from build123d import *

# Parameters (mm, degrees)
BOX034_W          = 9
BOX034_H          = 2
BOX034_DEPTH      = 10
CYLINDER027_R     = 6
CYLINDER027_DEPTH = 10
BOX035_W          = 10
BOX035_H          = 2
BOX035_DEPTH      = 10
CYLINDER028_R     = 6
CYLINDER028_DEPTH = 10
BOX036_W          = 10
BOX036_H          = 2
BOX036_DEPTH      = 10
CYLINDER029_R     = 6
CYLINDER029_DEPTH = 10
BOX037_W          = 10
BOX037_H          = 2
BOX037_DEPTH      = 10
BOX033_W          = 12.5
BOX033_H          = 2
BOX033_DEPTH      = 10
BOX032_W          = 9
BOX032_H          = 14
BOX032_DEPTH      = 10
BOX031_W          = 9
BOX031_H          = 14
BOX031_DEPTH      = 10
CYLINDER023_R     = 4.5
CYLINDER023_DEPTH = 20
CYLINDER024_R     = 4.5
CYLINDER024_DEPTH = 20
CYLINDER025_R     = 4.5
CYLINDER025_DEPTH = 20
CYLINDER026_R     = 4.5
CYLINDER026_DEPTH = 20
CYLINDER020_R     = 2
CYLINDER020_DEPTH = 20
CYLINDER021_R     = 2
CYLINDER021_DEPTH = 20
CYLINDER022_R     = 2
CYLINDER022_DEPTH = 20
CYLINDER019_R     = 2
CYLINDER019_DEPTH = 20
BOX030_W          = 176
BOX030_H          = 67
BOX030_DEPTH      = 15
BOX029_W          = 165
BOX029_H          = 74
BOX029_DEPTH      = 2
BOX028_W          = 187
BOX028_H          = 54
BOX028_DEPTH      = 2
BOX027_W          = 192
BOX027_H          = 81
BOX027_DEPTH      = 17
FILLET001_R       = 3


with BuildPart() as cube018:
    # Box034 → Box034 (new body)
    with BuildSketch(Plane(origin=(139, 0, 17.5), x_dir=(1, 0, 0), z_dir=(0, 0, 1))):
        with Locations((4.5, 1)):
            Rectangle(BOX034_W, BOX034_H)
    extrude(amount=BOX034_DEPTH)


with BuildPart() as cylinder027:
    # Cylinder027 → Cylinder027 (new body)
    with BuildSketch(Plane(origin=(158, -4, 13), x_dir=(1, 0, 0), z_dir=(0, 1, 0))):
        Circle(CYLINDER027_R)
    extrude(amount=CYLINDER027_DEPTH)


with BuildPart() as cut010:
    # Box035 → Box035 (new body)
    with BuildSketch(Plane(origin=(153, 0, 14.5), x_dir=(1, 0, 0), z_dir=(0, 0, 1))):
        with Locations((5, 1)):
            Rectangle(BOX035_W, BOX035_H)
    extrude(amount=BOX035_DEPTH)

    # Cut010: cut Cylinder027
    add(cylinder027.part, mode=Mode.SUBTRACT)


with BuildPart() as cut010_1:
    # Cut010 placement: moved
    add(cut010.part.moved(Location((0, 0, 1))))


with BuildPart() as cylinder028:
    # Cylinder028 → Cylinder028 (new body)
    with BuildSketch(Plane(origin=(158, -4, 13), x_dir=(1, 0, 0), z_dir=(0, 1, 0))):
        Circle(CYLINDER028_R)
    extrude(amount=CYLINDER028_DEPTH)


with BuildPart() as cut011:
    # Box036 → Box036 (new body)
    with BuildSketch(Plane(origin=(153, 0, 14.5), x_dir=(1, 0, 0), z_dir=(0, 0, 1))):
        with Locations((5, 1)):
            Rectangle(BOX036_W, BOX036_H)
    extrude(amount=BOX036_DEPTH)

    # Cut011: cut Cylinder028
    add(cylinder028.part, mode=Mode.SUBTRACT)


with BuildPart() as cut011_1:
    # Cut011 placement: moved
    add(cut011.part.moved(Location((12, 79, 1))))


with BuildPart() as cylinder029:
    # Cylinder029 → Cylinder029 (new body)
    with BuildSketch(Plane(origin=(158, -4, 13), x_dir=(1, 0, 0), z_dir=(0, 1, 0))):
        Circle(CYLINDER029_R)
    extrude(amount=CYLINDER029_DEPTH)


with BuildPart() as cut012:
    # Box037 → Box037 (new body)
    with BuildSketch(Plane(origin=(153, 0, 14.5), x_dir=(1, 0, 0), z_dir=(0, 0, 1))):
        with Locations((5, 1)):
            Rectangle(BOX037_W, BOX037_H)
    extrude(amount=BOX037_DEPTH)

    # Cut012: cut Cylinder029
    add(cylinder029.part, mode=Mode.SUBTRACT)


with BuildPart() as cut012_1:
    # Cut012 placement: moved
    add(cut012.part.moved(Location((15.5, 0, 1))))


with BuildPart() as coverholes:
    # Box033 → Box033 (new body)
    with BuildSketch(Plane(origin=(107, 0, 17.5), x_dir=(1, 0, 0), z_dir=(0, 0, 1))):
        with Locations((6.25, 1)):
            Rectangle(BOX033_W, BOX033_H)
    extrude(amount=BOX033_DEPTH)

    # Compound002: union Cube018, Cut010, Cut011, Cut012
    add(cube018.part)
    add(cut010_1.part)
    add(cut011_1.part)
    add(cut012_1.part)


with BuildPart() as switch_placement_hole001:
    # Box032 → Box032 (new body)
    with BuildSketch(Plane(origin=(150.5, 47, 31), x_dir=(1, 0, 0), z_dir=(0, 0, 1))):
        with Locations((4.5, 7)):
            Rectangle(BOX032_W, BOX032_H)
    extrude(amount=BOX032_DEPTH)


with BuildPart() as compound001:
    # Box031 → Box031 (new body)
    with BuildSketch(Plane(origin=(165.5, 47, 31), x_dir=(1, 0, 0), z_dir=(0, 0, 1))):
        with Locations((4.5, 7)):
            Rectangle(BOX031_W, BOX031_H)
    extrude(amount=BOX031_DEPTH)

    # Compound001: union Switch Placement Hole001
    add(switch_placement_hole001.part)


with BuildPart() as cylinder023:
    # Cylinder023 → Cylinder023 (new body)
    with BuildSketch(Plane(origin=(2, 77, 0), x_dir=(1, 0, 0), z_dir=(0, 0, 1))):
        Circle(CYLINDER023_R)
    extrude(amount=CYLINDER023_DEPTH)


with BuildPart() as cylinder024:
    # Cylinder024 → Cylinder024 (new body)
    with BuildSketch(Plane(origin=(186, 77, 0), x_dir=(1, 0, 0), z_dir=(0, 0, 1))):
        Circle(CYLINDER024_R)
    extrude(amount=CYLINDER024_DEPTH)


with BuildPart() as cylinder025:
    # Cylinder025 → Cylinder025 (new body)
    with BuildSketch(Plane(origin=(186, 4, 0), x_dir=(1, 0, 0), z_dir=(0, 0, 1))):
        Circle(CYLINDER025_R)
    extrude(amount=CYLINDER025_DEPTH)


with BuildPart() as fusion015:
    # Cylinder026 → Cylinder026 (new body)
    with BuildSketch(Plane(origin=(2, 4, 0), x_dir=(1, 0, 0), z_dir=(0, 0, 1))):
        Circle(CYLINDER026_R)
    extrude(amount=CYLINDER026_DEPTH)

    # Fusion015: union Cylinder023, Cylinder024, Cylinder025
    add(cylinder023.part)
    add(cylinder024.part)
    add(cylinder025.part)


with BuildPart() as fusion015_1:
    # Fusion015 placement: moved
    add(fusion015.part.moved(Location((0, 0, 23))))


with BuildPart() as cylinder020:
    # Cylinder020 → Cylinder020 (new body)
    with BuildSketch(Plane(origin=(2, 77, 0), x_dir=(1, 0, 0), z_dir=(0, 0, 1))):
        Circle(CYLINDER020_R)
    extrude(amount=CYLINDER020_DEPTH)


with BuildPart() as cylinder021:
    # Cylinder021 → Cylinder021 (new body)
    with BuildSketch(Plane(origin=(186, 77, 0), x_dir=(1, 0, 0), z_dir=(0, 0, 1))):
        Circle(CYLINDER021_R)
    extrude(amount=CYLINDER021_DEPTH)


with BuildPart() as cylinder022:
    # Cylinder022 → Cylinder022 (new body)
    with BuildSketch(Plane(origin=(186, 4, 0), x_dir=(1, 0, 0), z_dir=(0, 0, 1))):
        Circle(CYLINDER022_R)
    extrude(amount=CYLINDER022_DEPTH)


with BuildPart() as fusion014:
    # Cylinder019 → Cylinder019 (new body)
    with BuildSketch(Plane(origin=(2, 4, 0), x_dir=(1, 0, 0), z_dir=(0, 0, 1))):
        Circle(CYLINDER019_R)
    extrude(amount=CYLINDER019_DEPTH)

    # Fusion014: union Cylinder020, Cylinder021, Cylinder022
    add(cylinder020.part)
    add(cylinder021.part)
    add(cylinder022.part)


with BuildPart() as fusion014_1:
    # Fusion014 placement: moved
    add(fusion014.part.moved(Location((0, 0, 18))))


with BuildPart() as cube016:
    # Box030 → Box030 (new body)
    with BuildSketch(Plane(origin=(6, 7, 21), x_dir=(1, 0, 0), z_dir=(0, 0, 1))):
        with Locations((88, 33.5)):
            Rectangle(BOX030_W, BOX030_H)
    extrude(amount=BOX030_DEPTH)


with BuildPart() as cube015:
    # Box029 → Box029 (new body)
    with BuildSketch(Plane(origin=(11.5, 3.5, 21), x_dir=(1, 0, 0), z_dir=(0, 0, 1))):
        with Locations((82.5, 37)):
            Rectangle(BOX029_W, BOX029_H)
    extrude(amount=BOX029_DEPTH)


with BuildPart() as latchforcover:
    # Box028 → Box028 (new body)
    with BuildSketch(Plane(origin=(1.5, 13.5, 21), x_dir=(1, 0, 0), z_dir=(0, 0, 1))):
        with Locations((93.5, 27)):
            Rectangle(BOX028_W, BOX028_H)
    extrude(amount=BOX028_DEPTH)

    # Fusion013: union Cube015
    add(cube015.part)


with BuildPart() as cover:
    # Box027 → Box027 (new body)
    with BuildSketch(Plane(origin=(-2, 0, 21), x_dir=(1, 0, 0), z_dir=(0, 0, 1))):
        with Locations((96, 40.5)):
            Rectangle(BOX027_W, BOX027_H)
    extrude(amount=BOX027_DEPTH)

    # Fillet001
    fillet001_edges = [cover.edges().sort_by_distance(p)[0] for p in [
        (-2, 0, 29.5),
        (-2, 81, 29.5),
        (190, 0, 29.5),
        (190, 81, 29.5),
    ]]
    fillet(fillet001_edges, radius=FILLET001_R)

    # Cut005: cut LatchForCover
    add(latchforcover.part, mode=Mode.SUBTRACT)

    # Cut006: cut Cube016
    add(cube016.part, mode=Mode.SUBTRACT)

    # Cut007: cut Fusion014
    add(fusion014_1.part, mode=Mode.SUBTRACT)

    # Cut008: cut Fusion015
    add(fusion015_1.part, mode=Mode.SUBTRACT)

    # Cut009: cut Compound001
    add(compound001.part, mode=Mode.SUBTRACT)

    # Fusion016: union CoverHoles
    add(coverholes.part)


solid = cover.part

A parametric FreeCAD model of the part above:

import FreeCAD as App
import Part
import Sketcher
from FreeCAD import Vector


def edges_at(feature, points):
    """Names of the edges that pass closest to the given points."""
    edges = feature.Shape.Edges
    near = lambda p: min(range(len(edges)), key=lambda i: edges[i].distToShape(Part.Vertex(*p))[0])
    return sorted({f"Edge{near(p) + 1}" for p in points})

doc = App.newDocument("Part")
body = doc.addObject("PartDesign::Body", "Body")

sketch1 = body.newObject("Sketcher::SketchObject", "Sketch")
sketch1.AttachmentSupport = (doc.getObject("XY_Plane"), [""])
sketch1.MapMode = "FlatFace"
sketch1.AttachmentOffset = App.Placement(Vector(0, 0, 17.5), App.Rotation())
sketch1.addGeometry([
    Part.LineSegment(Vector(139, 2, 0), Vector(139, 0, 0)),
    Part.LineSegment(Vector(139, 0, 0), Vector(148, 0, 0)),
    Part.LineSegment(Vector(148, 0, 0), Vector(148, 2, 0)),
    Part.LineSegment(Vector(148, 2, 0), Vector(139, 2, 0)),
], False)
sketch1.addConstraint([
    Sketcher.Constraint("Coincident", 0, 2, 1, 1),
    Sketcher.Constraint("Coincident", 1, 2, 2, 1),
    Sketcher.Constraint("Coincident", 2, 2, 3, 1),
    Sketcher.Constraint("Coincident", 3, 2, 0, 1),
    Sketcher.Constraint("Vertical", 0),
    Sketcher.Constraint("Horizontal", 1),
    Sketcher.Constraint("Vertical", 2),
    Sketcher.Constraint("Horizontal", 3),
    Sketcher.Constraint("PointOnObject", 0, 2, -1),
    Sketcher.Constraint("DistanceX", 1, 1, 1, 2, 9.0),
    Sketcher.Constraint("DistanceY", 0, 2, 0, 1, 2.0),
    Sketcher.Constraint("DistanceX", -1, 1, 0, 2, 139.0),
])
pad1 = body.newObject("PartDesign::Pad", "Pad")
pad1.Profile = sketch1
pad1.Length = 10
body2 = doc.addObject("PartDesign::Body", "Body001")

sketch2 = body2.newObject("Sketcher::SketchObject", "Sketch001")
sketch2.AttachmentSupport = (doc.getObject("XZ_Plane001"), [""])
sketch2.MapMode = "FlatFace"
sketch2.AttachmentOffset = App.Placement(Vector(0, 0, 4), App.Rotation())
sketch2.addGeometry(Part.Circle(Vector(158, 13, 0), Vector(0, 0, 1), 6), False)
sketch2.addConstraint([
    Sketcher.Constraint("Diameter", 0, 12.0),
    Sketcher.Constraint("DistanceX", -1, 1, 0, 3, 158.0),
    Sketcher.Constraint("DistanceY", -1, 1, 0, 3, 13.0),
])
pad2 = body2.newObject("PartDesign::Pad", "Pad001")
pad2.Profile = sketch2
pad2.Length = 10
pad2.Reversed = True
body3 = doc.addObject("PartDesign::Body", "Body002")

sketch3 = body3.newObject("Sketcher::SketchObject", "Sketch002")
sketch3.AttachmentSupport = (doc.getObject("XY_Plane002"), [""])
sketch3.MapMode = "FlatFace"
sketch3.AttachmentOffset = App.Placement(Vector(0, 0, 14.5), App.Rotation())
sketch3.addGeometry([
    Part.LineSegment(Vector(153, 2, 0), Vector(153, 0, 0)),
    Part.LineSegment(Vector(153, 0, 0), Vector(163, 0, 0)),
    Part.LineSegment(Vector(163, 0, 0), Vector(163, 2, 0)),
    Part.LineSegment(Vector(163, 2, 0), Vector(153, 2, 0)),
], False)
sketch3.addConstraint([
    Sketcher.Constraint("Coincident", 0, 2, 1, 1),
    Sketcher.Constraint("Coincident", 1, 2, 2, 1),
    Sketcher.Constraint("Coincident", 2, 2, 3, 1),
    Sketcher.Constraint("Coincident", 3, 2, 0, 1),
    Sketcher.Constraint("Vertical", 0),
    Sketcher.Constraint("Horizontal", 1),
    Sketcher.Constraint("Vertical", 2),
    Sketcher.Constraint("Horizontal", 3),
    Sketcher.Constraint("PointOnObject", 0, 2, -1),
    Sketcher.Constraint("DistanceX", 1, 1, 1, 2, 10.0),
    Sketcher.Constraint("DistanceY", 0, 2, 0, 1, 2.0),
    Sketcher.Constraint("DistanceX", -1, 1, 0, 2, 153.0),
])
pad3 = body3.newObject("PartDesign::Pad", "Pad002")
pad3.Profile = sketch3
pad3.Length = 10
doc.recompute()

boolean = body3.newObject("PartDesign::Boolean", "Boolean")
boolean.Type = "Cut"
boolean.addObjects([body2])
body4 = doc.addObject("PartDesign::Body", "Body003")
doc.recompute()

body3.Placement = App.Placement(Vector(0, 0, 1), App.Rotation(Vector(0, 0, 1), 0))
boolean2 = body4.newObject("PartDesign::Boolean", "Boolean001")
boolean2.Type = "Fuse"
boolean2.addObjects([body3])
body5 = doc.addObject("PartDesign::Body", "Body004")

sketch4 = body5.newObject("Sketcher::SketchObject", "Sketch003")
sketch4.AttachmentSupport = (doc.getObject("XZ_Plane004"), [""])
sketch4.MapMode = "FlatFace"
sketch4.AttachmentOffset = App.Placement(Vector(0, 0, 4), App.Rotation())
sketch4.addGeometry(Part.Circle(Vector(158, 13, 0), Vector(0, 0, 1), 6), False)
sketch4.addConstraint([
    Sketcher.Constraint("Diameter", 0, 12.0),
    Sketcher.Constraint("DistanceX", -1, 1, 0, 3, 158.0),
    Sketcher.Constraint("DistanceY", -1, 1, 0, 3, 13.0),
])
pad4 = body5.newObject("PartDesign::Pad", "Pad003")
pad4.Profile = sketch4
pad4.Length = 10
pad4.Reversed = True
body6 = doc.addObject("PartDesign::Body", "Body005")

sketch5 = body6.newObject("Sketcher::SketchObject", "Sketch004")
sketch5.AttachmentSupport = (doc.getObject("XY_Plane005"), [""])
sketch5.MapMode = "FlatFace"
sketch5.AttachmentOffset = App.Placement(Vector(0, 0, 14.5), App.Rotation())
sketch5.addGeometry([
    Part.LineSegment(Vector(153, 2, 0), Vector(153, 0, 0)),
    Part.LineSegment(Vector(153, 0, 0), Vector(163, 0, 0)),
    Part.LineSegment(Vector(163, 0, 0), Vector(163, 2, 0)),
    Part.LineSegment(Vector(163, 2, 0), Vector(153, 2, 0)),
], False)
sketch5.addConstraint([
    Sketcher.Constraint("Coincident", 0, 2, 1, 1),
    Sketcher.Constraint("Coincident", 1, 2, 2, 1),
    Sketcher.Constraint("Coincident", 2, 2, 3, 1),
    Sketcher.Constraint("Coincident", 3, 2, 0, 1),
    Sketcher.Constraint("Vertical", 0),
    Sketcher.Constraint("Horizontal", 1),
    Sketcher.Constraint("Vertical", 2),
    Sketcher.Constraint("Horizontal", 3),
    Sketcher.Constraint("PointOnObject", 0, 2, -1),
    Sketcher.Constraint("DistanceX", 1, 1, 1, 2, 10.0),
    Sketcher.Constraint("DistanceY", 0, 2, 0, 1, 2.0),
    Sketcher.Constraint("DistanceX", -1, 1, 0, 2, 153.0),
])
pad5 = body6.newObject("PartDesign::Pad", "Pad004")
pad5.Profile = sketch5
pad5.Length = 10
doc.recompute()

boolean3 = body6.newObject("PartDesign::Boolean", "Boolean002")
boolean3.Type = "Cut"
boolean3.addObjects([body5])
body7 = doc.addObject("PartDesign::Body", "Body006")
doc.recompute()

body6.Placement = App.Placement(Vector(12, 79, 1), App.Rotation(Vector(0, 0, 1), 0))
boolean4 = body7.newObject("PartDesign::Boolean", "Boolean003")
boolean4.Type = "Fuse"
boolean4.addObjects([body6])
body8 = doc.addObject("PartDesign::Body", "Body007")

sketch6 = body8.newObject("Sketcher::SketchObject", "Sketch005")
sketch6.AttachmentSupport = (doc.getObject("XZ_Plane007"), [""])
sketch6.MapMode = "FlatFace"
sketch6.AttachmentOffset = App.Placement(Vector(0, 0, 4), App.Rotation())
sketch6.addGeometry(Part.Circle(Vector(158, 13, 0), Vector(0, 0, 1), 6), False)
sketch6.addConstraint([
    Sketcher.Constraint("Diameter", 0, 12.0),
    Sketcher.Constraint("DistanceX", -1, 1, 0, 3, 158.0),
    Sketcher.Constraint("DistanceY", -1, 1, 0, 3, 13.0),
])
pad6 = body8.newObject("PartDesign::Pad", "Pad005")
pad6.Profile = sketch6
pad6.Length = 10
pad6.Reversed = True
body9 = doc.addObject("PartDesign::Body", "Body008")

sketch7 = body9.newObject("Sketcher::SketchObject", "Sketch006")
sketch7.AttachmentSupport = (doc.getObject("XY_Plane008"), [""])
sketch7.MapMode = "FlatFace"
sketch7.AttachmentOffset = App.Placement(Vector(0, 0, 14.5), App.Rotation())
sketch7.addGeometry([
    Part.LineSegment(Vector(153, 2, 0), Vector(153, 0, 0)),
    Part.LineSegment(Vector(153, 0, 0), Vector(163, 0, 0)),
    Part.LineSegment(Vector(163, 0, 0), Vector(163, 2, 0)),
    Part.LineSegment(Vector(163, 2, 0), Vector(153, 2, 0)),
], False)
sketch7.addConstraint([
    Sketcher.Constraint("Coincident", 0, 2, 1, 1),
    Sketcher.Constraint("Coincident", 1, 2, 2, 1),
    Sketcher.Constraint("Coincident", 2, 2, 3, 1),
    Sketcher.Constraint("Coincident", 3, 2, 0, 1),
    Sketcher.Constraint("Vertical", 0),
    Sketcher.Constraint("Horizontal", 1),
    Sketcher.Constraint("Vertical", 2),
    Sketcher.Constraint("Horizontal", 3),
    Sketcher.Constraint("PointOnObject", 0, 2, -1),
    Sketcher.Constraint("DistanceX", 1, 1, 1, 2, 10.0),
    Sketcher.Constraint("DistanceY", 0, 2, 0, 1, 2.0),
    Sketcher.Constraint("DistanceX", -1, 1, 0, 2, 153.0),
])
pad7 = body9.newObject("PartDesign::Pad", "Pad006")
pad7.Profile = sketch7
pad7.Length = 10
doc.recompute()

boolean5 = body9.newObject("PartDesign::Boolean", "Boolean004")
boolean5.Type = "Cut"
boolean5.addObjects([body8])
body10 = doc.addObject("PartDesign::Body", "Body009")
doc.recompute()

body9.Placement = App.Placement(Vector(15.5, 0, 1), App.Rotation(Vector(0, 0, 1), 0))
boolean6 = body10.newObject("PartDesign::Boolean", "Boolean005")
boolean6.Type = "Fuse"
boolean6.addObjects([body9])
body11 = doc.addObject("PartDesign::Body", "Body010")
body11.AllowCompound = True

sketch8 = body11.newObject("Sketcher::SketchObject", "Sketch007")
sketch8.AttachmentSupport = (doc.getObject("XY_Plane010"), [""])
sketch8.MapMode = "FlatFace"
sketch8.AttachmentOffset = App.Placement(Vector(0, 0, 17.5), App.Rotation())
sketch8.addGeometry([
    Part.LineSegment(Vector(107, 2, 0), Vector(107, 0, 0)),
    Part.LineSegment(Vector(107, 0, 0), Vector(119.5, 0, 0)),
    Part.LineSegment(Vector(119.5, 0, 0), Vector(119.5, 2, 0)),
    Part.LineSegment(Vector(119.5, 2, 0), Vector(107, 2, 0)),
], False)
sketch8.addConstraint([
    Sketcher.Constraint("Coincident", 0, 2, 1, 1),
    Sketcher.Constraint("Coincident", 1, 2, 2, 1),
    Sketcher.Constraint("Coincident", 2, 2, 3, 1),
    Sketcher.Constraint("Coincident", 3, 2, 0, 1),
    Sketcher.Constraint("Vertical", 0),
    Sketcher.Constraint("Horizontal", 1),
    Sketcher.Constraint("Vertical", 2),
    Sketcher.Constraint("Horizontal", 3),
    Sketcher.Constraint("PointOnObject", 0, 2, -1),
    Sketcher.Constraint("DistanceY", 0, 2, 0, 1, 2.0),
    Sketcher.Constraint("DistanceX", 1, 1, 1, 2, 12.5),
    Sketcher.Constraint("DistanceX", -1, 1, 0, 2, 107.0),
])
pad8 = body11.newObject("PartDesign::Pad", "Pad007")
pad8.Profile = sketch8
pad8.Length = 10
doc.recompute()

boolean7 = body11.newObject("PartDesign::Boolean", "Boolean006")
boolean7.Type = "Fuse"
boolean7.addObjects([body])
doc.recompute()

boolean8 = body11.newObject("PartDesign::Boolean", "Boolean007")
boolean8.Type = "Fuse"
boolean8.addObjects([body4])
doc.recompute()

boolean9 = body11.newObject("PartDesign::Boolean", "Boolean008")
boolean9.Type = "Fuse"
boolean9.addObjects([body7])
doc.recompute()

boolean10 = body11.newObject("PartDesign::Boolean", "Boolean009")
boolean10.Type = "Fuse"
boolean10.addObjects([body10])
body12 = doc.addObject("PartDesign::Body", "Body011")

sketch9 = body12.newObject("Sketcher::SketchObject", "Sketch008")
sketch9.AttachmentSupport = (doc.getObject("XY_Plane011"), [""])
sketch9.MapMode = "FlatFace"
sketch9.AttachmentOffset = App.Placement(Vector(0, 0, 31), App.Rotation())
sketch9.addGeometry([
    Part.LineSegment(Vector(150.5, 61, 0), Vector(150.5, 47, 0)),
    Part.LineSegment(Vector(150.5, 47, 0), Vector(159.5, 47, 0)),
    Part.LineSegment(Vector(159.5, 47, 0), Vector(159.5, 61, 0)),
    Part.LineSegment(Vector(159.5, 61, 0), Vector(150.5, 61, 0)),
], False)
sketch9.addConstraint([
    Sketcher.Constraint("Coincident", 0, 2, 1, 1),
    Sketcher.Constraint("Coincident", 1, 2, 2, 1),
    Sketcher.Constraint("Coincident", 2, 2, 3, 1),
    Sketcher.Constraint("Coincident", 3, 2, 0, 1),
    Sketcher.Constraint("Vertical", 0),
    Sketcher.Constraint("Horizontal", 1),
    Sketcher.Constraint("Vertical", 2),
    Sketcher.Constraint("Horizontal", 3),
    Sketcher.Constraint("DistanceX", 1, 1, 1, 2, 9.0),
    Sketcher.Constraint("DistanceY", 0, 2, 0, 1, 14.0),
    Sketcher.Constraint("DistanceY", -1, 1, 0, 2, 47.0),
    Sketcher.Constraint("DistanceX", -1, 1, 0, 2, 150.5),
])
pad9 = body12.newObject("PartDesign::Pad", "Pad008")
pad9.Profile = sketch9
pad9.Length = 10
body13 = doc.addObject("PartDesign::Body", "Body012")
body13.AllowCompound = True

sketch10 = body13.newObject("Sketcher::SketchObject", "Sketch009")
sketch10.AttachmentSupport = (doc.getObject("XY_Plane012"), [""])
sketch10.MapMode = "FlatFace"
sketch10.AttachmentOffset = App.Placement(Vector(0, 0, 31), App.Rotation())
sketch10.addGeometry([
    Part.LineSegment(Vector(165.5, 61, 0), Vector(165.5, 47, 0)),
    Part.LineSegment(Vector(165.5, 47, 0), Vector(174.5, 47, 0)),
    Part.LineSegment(Vector(174.5, 47, 0), Vector(174.5, 61, 0)),
    Part.LineSegment(Vector(174.5, 61, 0), Vector(165.5, 61, 0)),
], False)
sketch10.addConstraint([
    Sketcher.Constraint("Coincident", 0, 2, 1, 1),
    Sketcher.Constraint("Coincident", 1, 2, 2, 1),
    Sketcher.Constraint("Coincident", 2, 2, 3, 1),
    Sketcher.Constraint("Coincident", 3, 2, 0, 1),
    Sketcher.Constraint("Vertical", 0),
    Sketcher.Constraint("Horizontal", 1),
    Sketcher.Constraint("Vertical", 2),
    Sketcher.Constraint("Horizontal", 3),
    Sketcher.Constraint("DistanceX", 1, 1, 1, 2, 9.0),
    Sketcher.Constraint("DistanceY", 0, 2, 0, 1, 14.0),
    Sketcher.Constraint("DistanceY", -1, 1, 0, 2, 47.0),
    Sketcher.Constraint("DistanceX", -1, 1, 0, 2, 165.5),
])
pad10 = body13.newObject("PartDesign::Pad", "Pad009")
pad10.Profile = sketch10
pad10.Length = 10
doc.recompute()

boolean11 = body13.newObject("PartDesign::Boolean", "Boolean010")
boolean11.Type = "Fuse"
boolean11.addObjects([body12])
body14 = doc.addObject("PartDesign::Body", "Body013")

sketch11 = body14.newObject("Sketcher::SketchObject", "Sketch010")
sketch11.AttachmentSupport = (doc.getObject("XY_Plane013"), [""])
sketch11.MapMode = "FlatFace"
sketch11.addGeometry(Part.Circle(Vector(2, 77, 0), Vector(0, 0, 1), 4.5), False)
sketch11.addConstraint([
    Sketcher.Constraint("Diameter", 0, 9.0),
    Sketcher.Constraint("DistanceX", -1, 1, 0, 3, 2.0),
    Sketcher.Constraint("DistanceY", -1, 1, 0, 3, 77.0),
])
pad11 = body14.newObject("PartDesign::Pad", "Pad010")
pad11.Profile = sketch11
pad11.Length = 20
body15 = doc.addObject("PartDesign::Body", "Body014")

sketch12 = body15.newObject("Sketcher::SketchObject", "Sketch011")
sketch12.AttachmentSupport = (doc.getObject("XY_Plane014"), [""])
sketch12.MapMode = "FlatFace"
sketch12.addGeometry(Part.Circle(Vector(186, 77, 0), Vector(0, 0, 1), 4.5), False)
sketch12.addConstraint([
    Sketcher.Constraint("Diameter", 0, 9.0),
    Sketcher.Constraint("DistanceX", -1, 1, 0, 3, 186.0),
    Sketcher.Constraint("DistanceY", -1, 1, 0, 3, 77.0),
])
pad12 = body15.newObject("PartDesign::Pad", "Pad011")
pad12.Profile = sketch12
pad12.Length = 20
body16 = doc.addObject("PartDesign::Body", "Body015")

sketch13 = body16.newObject("Sketcher::SketchObject", "Sketch012")
sketch13.AttachmentSupport = (doc.getObject("XY_Plane015"), [""])
sketch13.MapMode = "FlatFace"
sketch13.addGeometry(Part.Circle(Vector(186, 4, 0), Vector(0, 0, 1), 4.5), False)
sketch13.addConstraint([
    Sketcher.Constraint("Diameter", 0, 9.0),
    Sketcher.Constraint("DistanceX", -1, 1, 0, 3, 186.0),
    Sketcher.Constraint("DistanceY", -1, 1, 0, 3, 4.0),
])
pad13 = body16.newObject("PartDesign::Pad", "Pad012")
pad13.Profile = sketch13
pad13.Length = 20
body17 = doc.addObject("PartDesign::Body", "Body016")
body17.AllowCompound = True

sketch14 = body17.newObject("Sketcher::SketchObject", "Sketch013")
sketch14.AttachmentSupport = (doc.getObject("XY_Plane016"), [""])
sketch14.MapMode = "FlatFace"
sketch14.addGeometry(Part.Circle(Vector(2, 4, 0), Vector(0, 0, 1), 4.5), False)
sketch14.addConstraint([
    Sketcher.Constraint("Diameter", 0, 9.0),
    Sketcher.Constraint("DistanceX", -1, 1, 0, 3, 2.0),
    Sketcher.Constraint("DistanceY", -1, 1, 0, 3, 4.0),
])
pad14 = body17.newObject("PartDesign::Pad", "Pad013")
pad14.Profile = sketch14
pad14.Length = 20
doc.recompute()

boolean12 = body17.newObject("PartDesign::Boolean", "Boolean011")
boolean12.Type = "Fuse"
boolean12.addObjects([body14])
doc.recompute()

boolean13 = body17.newObject("PartDesign::Boolean", "Boolean012")
boolean13.Type = "Fuse"
boolean13.addObjects([body15])
doc.recompute()

boolean14 = body17.newObject("PartDesign::Boolean", "Boolean013")
boolean14.Type = "Fuse"
boolean14.addObjects([body16])
body18 = doc.addObject("PartDesign::Body", "Body017")
body18.AllowCompound = True
doc.recompute()

body17.Placement = App.Placement(Vector(0, 0, 23), App.Rotation(Vector(0, 0, 1), 0))
boolean15 = body18.newObject("PartDesign::Boolean", "Boolean014")
boolean15.Type = "Fuse"
boolean15.addObjects([body17])
body19 = doc.addObject("PartDesign::Body", "Body018")

sketch15 = body19.newObject("Sketcher::SketchObject", "Sketch014")
sketch15.AttachmentSupport = (doc.getObject("XY_Plane018"), [""])
sketch15.MapMode = "FlatFace"
sketch15.addGeometry(Part.Circle(Vector(2, 77, 0), Vector(0, 0, 1), 2), False)
sketch15.addConstraint([
    Sketcher.Constraint("Diameter", 0, 4.0),
    Sketcher.Constraint("DistanceX", -1, 1, 0, 3, 2.0),
    Sketcher.Constraint("DistanceY", -1, 1, 0, 3, 77.0),
])
pad15 = body19.newObject("PartDesign::Pad", "Pad014")
pad15.Profile = sketch15
pad15.Length = 20
body20 = doc.addObject("PartDesign::Body", "Body019")

sketch16 = body20.newObject("Sketcher::SketchObject", "Sketch015")
sketch16.AttachmentSupport = (doc.getObject("XY_Plane019"), [""])
sketch16.MapMode = "FlatFace"
sketch16.addGeometry(Part.Circle(Vector(186, 77, 0), Vector(0, 0, 1), 2), False)
sketch16.addConstraint([
    Sketcher.Constraint("Diameter", 0, 4.0),
    Sketcher.Constraint("DistanceX", -1, 1, 0, 3, 186.0),
    Sketcher.Constraint("DistanceY", -1, 1, 0, 3, 77.0),
])
pad16 = body20.newObject("PartDesign::Pad", "Pad015")
pad16.Profile = sketch16
pad16.Length = 20
body21 = doc.addObject("PartDesign::Body", "Body020")

sketch17 = body21.newObject("Sketcher::SketchObject", "Sketch016")
sketch17.AttachmentSupport = (doc.getObject("XY_Plane020"), [""])
sketch17.MapMode = "FlatFace"
sketch17.addGeometry(Part.Circle(Vector(186, 4, 0), Vector(0, 0, 1), 2), False)
sketch17.addConstraint([
    Sketcher.Constraint("Diameter", 0, 4.0),
    Sketcher.Constraint("DistanceX", -1, 1, 0, 3, 186.0),
    Sketcher.Constraint("DistanceY", -1, 1, 0, 3, 4.0),
])
pad17 = body21.newObject("PartDesign::Pad", "Pad016")
pad17.Profile = sketch17
pad17.Length = 20
body22 = doc.addObject("PartDesign::Body", "Body021")
body22.AllowCompound = True

sketch18 = body22.newObject("Sketcher::SketchObject", "Sketch017")
sketch18.AttachmentSupport = (doc.getObject("XY_Plane021"), [""])
sketch18.MapMode = "FlatFace"
sketch18.addGeometry(Part.Circle(Vector(2, 4, 0), Vector(0, 0, 1), 2), False)
sketch18.addConstraint([
    Sketcher.Constraint("Diameter", 0, 4.0),
    Sketcher.Constraint("DistanceX", -1, 1, 0, 3, 2.0),
    Sketcher.Constraint("DistanceY", -1, 1, 0, 3, 4.0),
])
pad18 = body22.newObject("PartDesign::Pad", "Pad017")
pad18.Profile = sketch18
pad18.Length = 20
doc.recompute()

boolean16 = body22.newObject("PartDesign::Boolean", "Boolean015")
boolean16.Type = "Fuse"
boolean16.addObjects([body19])
doc.recompute()

boolean17 = body22.newObject("PartDesign::Boolean", "Boolean016")
boolean17.Type = "Fuse"
boolean17.addObjects([body20])
doc.recompute()

boolean18 = body22.newObject("PartDesign::Boolean", "Boolean017")
boolean18.Type = "Fuse"
boolean18.addObjects([body21])
body23 = doc.addObject("PartDesign::Body", "Body022")
body23.AllowCompound = True
doc.recompute()

body22.Placement = App.Placement(Vector(0, 0, 18), App.Rotation(Vector(0, 0, 1), 0))
boolean19 = body23.newObject("PartDesign::Boolean", "Boolean018")
boolean19.Type = "Fuse"
boolean19.addObjects([body22])
body24 = doc.addObject("PartDesign::Body", "Body023")

sketch19 = body24.newObject("Sketcher::SketchObject", "Sketch018")
sketch19.AttachmentSupport = (doc.getObject("XY_Plane023"), [""])
sketch19.MapMode = "FlatFace"
sketch19.AttachmentOffset = App.Placement(Vector(0, 0, 21), App.Rotation())
sketch19.addGeometry([
    Part.LineSegment(Vector(6, 74, 0), Vector(6, 7, 0)),
    Part.LineSegment(Vector(6, 7, 0), Vector(182, 7, 0)),
    Part.LineSegment(Vector(182, 7, 0), Vector(182, 74, 0)),
    Part.LineSegment(Vector(182, 74, 0), Vector(6, 74, 0)),
], False)
sketch19.addConstraint([
    Sketcher.Constraint("Coincident", 0, 2, 1, 1),
    Sketcher.Constraint("Coincident", 1, 2, 2, 1),
    Sketcher.Constraint("Coincident", 2, 2, 3, 1),
    Sketcher.Constraint("Coincident", 3, 2, 0, 1),
    Sketcher.Constraint("Vertical", 0),
    Sketcher.Constraint("Horizontal", 1),
    Sketcher.Constraint("Vertical", 2),
    Sketcher.Constraint("Horizontal", 3),
    Sketcher.Constraint("DistanceX", 1, 1, 1, 2, 176.0),
    Sketcher.Constraint("DistanceY", 0, 2, 0, 1, 67.0),
    Sketcher.Constraint("DistanceX", -1, 1, 0, 2, 6.0),
    Sketcher.Constraint("DistanceY", -1, 1, 0, 2, 7.0),
])
pad19 = body24.newObject("PartDesign::Pad", "Pad018")
pad19.Profile = sketch19
pad19.Length = 15
body25 = doc.addObject("PartDesign::Body", "Body024")

sketch20 = body25.newObject("Sketcher::SketchObject", "Sketch019")
sketch20.AttachmentSupport = (doc.getObject("XY_Plane024"), [""])
sketch20.MapMode = "FlatFace"
sketch20.AttachmentOffset = App.Placement(Vector(0, 0, 21), App.Rotation())
sketch20.addGeometry([
    Part.LineSegment(Vector(11.5, 77.5, 0), Vector(11.5, 3.5, 0)),
    Part.LineSegment(Vector(11.5, 3.5, 0), Vector(176.5, 3.5, 0)),
    Part.LineSegment(Vector(176.5, 3.5, 0), Vector(176.5, 77.5, 0)),
    Part.LineSegment(Vector(176.5, 77.5, 0), Vector(11.5, 77.5, 0)),
], False)
sketch20.addConstraint([
    Sketcher.Constraint("Coincident", 0, 2, 1, 1),
    Sketcher.Constraint("Coincident", 1, 2, 2, 1),
    Sketcher.Constraint("Coincident", 2, 2, 3, 1),
    Sketcher.Constraint("Coincident", 3, 2, 0, 1),
    Sketcher.Constraint("Vertical", 0),
    Sketcher.Constraint("Horizontal", 1),
    Sketcher.Constraint("Vertical", 2),
    Sketcher.Constraint("Horizontal", 3),
    Sketcher.Constraint("DistanceX", 1, 1, 1, 2, 165.0),
    Sketcher.Constraint("DistanceY", 0, 2, 0, 1, 74.0),
    Sketcher.Constraint("DistanceX", -1, 1, 0, 2, 11.5),
    Sketcher.Constraint("DistanceY", -1, 1, 0, 2, 3.5),
])
pad20 = body25.newObject("PartDesign::Pad", "Pad019")
pad20.Profile = sketch20
pad20.Length = 2
body26 = doc.addObject("PartDesign::Body", "Body025")

sketch21 = body26.newObject("Sketcher::SketchObject", "Sketch020")
sketch21.AttachmentSupport = (doc.getObject("XY_Plane025"), [""])
sketch21.MapMode = "FlatFace"
sketch21.AttachmentOffset = App.Placement(Vector(0, 0, 21), App.Rotation())
sketch21.addGeometry([
    Part.LineSegment(Vector(1.5, 67.5, 0), Vector(1.5, 13.5, 0)),
    Part.LineSegment(Vector(1.5, 13.5, 0), Vector(188.5, 13.5, 0)),
    Part.LineSegment(Vector(188.5, 13.5, 0), Vector(188.5, 67.5, 0)),
    Part.LineSegment(Vector(188.5, 67.5, 0), Vector(1.5, 67.5, 0)),
], False)
sketch21.addConstraint([
    Sketcher.Constraint("Coincident", 0, 2, 1, 1),
    Sketcher.Constraint("Coincident", 1, 2, 2, 1),
    Sketcher.Constraint("Coincident", 2, 2, 3, 1),
    Sketcher.Constraint("Coincident", 3, 2, 0, 1),
    Sketcher.Constraint("Vertical", 0),
    Sketcher.Constraint("Horizontal", 1),
    Sketcher.Constraint("Vertical", 2),
    Sketcher.Constraint("Horizontal", 3),
    Sketcher.Constraint("DistanceX", 1, 1, 1, 2, 187.0),
    Sketcher.Constraint("DistanceY", 0, 2, 0, 1, 54.0),
    Sketcher.Constraint("DistanceX", -1, 1, 0, 2, 1.5),
    Sketcher.Constraint("DistanceY", -1, 1, 0, 2, 13.5),
])
pad21 = body26.newObject("PartDesign::Pad", "Pad020")
pad21.Profile = sketch21
pad21.Length = 2
doc.recompute()

boolean20 = body26.newObject("PartDesign::Boolean", "Boolean019")
boolean20.Type = "Fuse"
boolean20.addObjects([body25])
body27 = doc.addObject("PartDesign::Body", "Body026")

sketch22 = body27.newObject("Sketcher::SketchObject", "Sketch021")
sketch22.AttachmentSupport = (doc.getObject("XY_Plane026"), [""])
sketch22.MapMode = "FlatFace"
sketch22.AttachmentOffset = App.Placement(Vector(0, 0, 21), App.Rotation())
sketch22.addGeometry([
    Part.LineSegment(Vector(-2, 81, 0), Vector(-2, 0, 0)),
    Part.LineSegment(Vector(-2, 0, 0), Vector(190, 0, 0)),
    Part.LineSegment(Vector(190, 0, 0), Vector(190, 81, 0)),
    Part.LineSegment(Vector(190, 81, 0), Vector(-2, 81, 0)),
], False)
sketch22.addConstraint([
    Sketcher.Constraint("Coincident", 0, 2, 1, 1),
    Sketcher.Constraint("Coincident", 1, 2, 2, 1),
    Sketcher.Constraint("Coincident", 2, 2, 3, 1),
    Sketcher.Constraint("Coincident", 3, 2, 0, 1),
    Sketcher.Constraint("Vertical", 0),
    Sketcher.Constraint("Horizontal", 1),
    Sketcher.Constraint("Vertical", 2),
    Sketcher.Constraint("Horizontal", 3),
    Sketcher.Constraint("PointOnObject", 0, 2, -1),
    Sketcher.Constraint("DistanceX", 1, 1, 1, 2, 192.0),
    Sketcher.Constraint("DistanceY", 0, 2, 0, 1, 81.0),
    Sketcher.Constraint("DistanceX", 0, 2, -1, 1, 2.0),
])
pad22 = body27.newObject("PartDesign::Pad", "Pad021")
pad22.Profile = sketch22
pad22.Length = 17
doc.recompute()

fillet = body27.newObject("PartDesign::Fillet", "Fillet")
fillet.Base = (pad22, edges_at(pad22, [
    (-2, 0, 29.5),
    (-2, 81, 29.5),
    (190, 0, 29.5),
    (190, 81, 29.5),
]))
fillet.Radius = 3
doc.recompute()

boolean21 = body27.newObject("PartDesign::Boolean", "Boolean020")
boolean21.Type = "Cut"
boolean21.addObjects([body26])
doc.recompute()

boolean22 = body27.newObject("PartDesign::Boolean", "Boolean021")
boolean22.Type = "Cut"
boolean22.addObjects([body24])
doc.recompute()

boolean23 = body27.newObject("PartDesign::Boolean", "Boolean022")
boolean23.Type = "Cut"
boolean23.addObjects([body23])
doc.recompute()

boolean24 = body27.newObject("PartDesign::Boolean", "Boolean023")
boolean24.Type = "Cut"
boolean24.addObjects([body18])
doc.recompute()

boolean25 = body27.newObject("PartDesign::Boolean", "Boolean024")
boolean25.Type = "Cut"
boolean25.addObjects([body13])
doc.recompute()

boolean26 = body27.newObject("PartDesign::Boolean", "Boolean025")
boolean26.Type = "Fuse"
boolean26.addObjects([body11])

doc.recompute()
